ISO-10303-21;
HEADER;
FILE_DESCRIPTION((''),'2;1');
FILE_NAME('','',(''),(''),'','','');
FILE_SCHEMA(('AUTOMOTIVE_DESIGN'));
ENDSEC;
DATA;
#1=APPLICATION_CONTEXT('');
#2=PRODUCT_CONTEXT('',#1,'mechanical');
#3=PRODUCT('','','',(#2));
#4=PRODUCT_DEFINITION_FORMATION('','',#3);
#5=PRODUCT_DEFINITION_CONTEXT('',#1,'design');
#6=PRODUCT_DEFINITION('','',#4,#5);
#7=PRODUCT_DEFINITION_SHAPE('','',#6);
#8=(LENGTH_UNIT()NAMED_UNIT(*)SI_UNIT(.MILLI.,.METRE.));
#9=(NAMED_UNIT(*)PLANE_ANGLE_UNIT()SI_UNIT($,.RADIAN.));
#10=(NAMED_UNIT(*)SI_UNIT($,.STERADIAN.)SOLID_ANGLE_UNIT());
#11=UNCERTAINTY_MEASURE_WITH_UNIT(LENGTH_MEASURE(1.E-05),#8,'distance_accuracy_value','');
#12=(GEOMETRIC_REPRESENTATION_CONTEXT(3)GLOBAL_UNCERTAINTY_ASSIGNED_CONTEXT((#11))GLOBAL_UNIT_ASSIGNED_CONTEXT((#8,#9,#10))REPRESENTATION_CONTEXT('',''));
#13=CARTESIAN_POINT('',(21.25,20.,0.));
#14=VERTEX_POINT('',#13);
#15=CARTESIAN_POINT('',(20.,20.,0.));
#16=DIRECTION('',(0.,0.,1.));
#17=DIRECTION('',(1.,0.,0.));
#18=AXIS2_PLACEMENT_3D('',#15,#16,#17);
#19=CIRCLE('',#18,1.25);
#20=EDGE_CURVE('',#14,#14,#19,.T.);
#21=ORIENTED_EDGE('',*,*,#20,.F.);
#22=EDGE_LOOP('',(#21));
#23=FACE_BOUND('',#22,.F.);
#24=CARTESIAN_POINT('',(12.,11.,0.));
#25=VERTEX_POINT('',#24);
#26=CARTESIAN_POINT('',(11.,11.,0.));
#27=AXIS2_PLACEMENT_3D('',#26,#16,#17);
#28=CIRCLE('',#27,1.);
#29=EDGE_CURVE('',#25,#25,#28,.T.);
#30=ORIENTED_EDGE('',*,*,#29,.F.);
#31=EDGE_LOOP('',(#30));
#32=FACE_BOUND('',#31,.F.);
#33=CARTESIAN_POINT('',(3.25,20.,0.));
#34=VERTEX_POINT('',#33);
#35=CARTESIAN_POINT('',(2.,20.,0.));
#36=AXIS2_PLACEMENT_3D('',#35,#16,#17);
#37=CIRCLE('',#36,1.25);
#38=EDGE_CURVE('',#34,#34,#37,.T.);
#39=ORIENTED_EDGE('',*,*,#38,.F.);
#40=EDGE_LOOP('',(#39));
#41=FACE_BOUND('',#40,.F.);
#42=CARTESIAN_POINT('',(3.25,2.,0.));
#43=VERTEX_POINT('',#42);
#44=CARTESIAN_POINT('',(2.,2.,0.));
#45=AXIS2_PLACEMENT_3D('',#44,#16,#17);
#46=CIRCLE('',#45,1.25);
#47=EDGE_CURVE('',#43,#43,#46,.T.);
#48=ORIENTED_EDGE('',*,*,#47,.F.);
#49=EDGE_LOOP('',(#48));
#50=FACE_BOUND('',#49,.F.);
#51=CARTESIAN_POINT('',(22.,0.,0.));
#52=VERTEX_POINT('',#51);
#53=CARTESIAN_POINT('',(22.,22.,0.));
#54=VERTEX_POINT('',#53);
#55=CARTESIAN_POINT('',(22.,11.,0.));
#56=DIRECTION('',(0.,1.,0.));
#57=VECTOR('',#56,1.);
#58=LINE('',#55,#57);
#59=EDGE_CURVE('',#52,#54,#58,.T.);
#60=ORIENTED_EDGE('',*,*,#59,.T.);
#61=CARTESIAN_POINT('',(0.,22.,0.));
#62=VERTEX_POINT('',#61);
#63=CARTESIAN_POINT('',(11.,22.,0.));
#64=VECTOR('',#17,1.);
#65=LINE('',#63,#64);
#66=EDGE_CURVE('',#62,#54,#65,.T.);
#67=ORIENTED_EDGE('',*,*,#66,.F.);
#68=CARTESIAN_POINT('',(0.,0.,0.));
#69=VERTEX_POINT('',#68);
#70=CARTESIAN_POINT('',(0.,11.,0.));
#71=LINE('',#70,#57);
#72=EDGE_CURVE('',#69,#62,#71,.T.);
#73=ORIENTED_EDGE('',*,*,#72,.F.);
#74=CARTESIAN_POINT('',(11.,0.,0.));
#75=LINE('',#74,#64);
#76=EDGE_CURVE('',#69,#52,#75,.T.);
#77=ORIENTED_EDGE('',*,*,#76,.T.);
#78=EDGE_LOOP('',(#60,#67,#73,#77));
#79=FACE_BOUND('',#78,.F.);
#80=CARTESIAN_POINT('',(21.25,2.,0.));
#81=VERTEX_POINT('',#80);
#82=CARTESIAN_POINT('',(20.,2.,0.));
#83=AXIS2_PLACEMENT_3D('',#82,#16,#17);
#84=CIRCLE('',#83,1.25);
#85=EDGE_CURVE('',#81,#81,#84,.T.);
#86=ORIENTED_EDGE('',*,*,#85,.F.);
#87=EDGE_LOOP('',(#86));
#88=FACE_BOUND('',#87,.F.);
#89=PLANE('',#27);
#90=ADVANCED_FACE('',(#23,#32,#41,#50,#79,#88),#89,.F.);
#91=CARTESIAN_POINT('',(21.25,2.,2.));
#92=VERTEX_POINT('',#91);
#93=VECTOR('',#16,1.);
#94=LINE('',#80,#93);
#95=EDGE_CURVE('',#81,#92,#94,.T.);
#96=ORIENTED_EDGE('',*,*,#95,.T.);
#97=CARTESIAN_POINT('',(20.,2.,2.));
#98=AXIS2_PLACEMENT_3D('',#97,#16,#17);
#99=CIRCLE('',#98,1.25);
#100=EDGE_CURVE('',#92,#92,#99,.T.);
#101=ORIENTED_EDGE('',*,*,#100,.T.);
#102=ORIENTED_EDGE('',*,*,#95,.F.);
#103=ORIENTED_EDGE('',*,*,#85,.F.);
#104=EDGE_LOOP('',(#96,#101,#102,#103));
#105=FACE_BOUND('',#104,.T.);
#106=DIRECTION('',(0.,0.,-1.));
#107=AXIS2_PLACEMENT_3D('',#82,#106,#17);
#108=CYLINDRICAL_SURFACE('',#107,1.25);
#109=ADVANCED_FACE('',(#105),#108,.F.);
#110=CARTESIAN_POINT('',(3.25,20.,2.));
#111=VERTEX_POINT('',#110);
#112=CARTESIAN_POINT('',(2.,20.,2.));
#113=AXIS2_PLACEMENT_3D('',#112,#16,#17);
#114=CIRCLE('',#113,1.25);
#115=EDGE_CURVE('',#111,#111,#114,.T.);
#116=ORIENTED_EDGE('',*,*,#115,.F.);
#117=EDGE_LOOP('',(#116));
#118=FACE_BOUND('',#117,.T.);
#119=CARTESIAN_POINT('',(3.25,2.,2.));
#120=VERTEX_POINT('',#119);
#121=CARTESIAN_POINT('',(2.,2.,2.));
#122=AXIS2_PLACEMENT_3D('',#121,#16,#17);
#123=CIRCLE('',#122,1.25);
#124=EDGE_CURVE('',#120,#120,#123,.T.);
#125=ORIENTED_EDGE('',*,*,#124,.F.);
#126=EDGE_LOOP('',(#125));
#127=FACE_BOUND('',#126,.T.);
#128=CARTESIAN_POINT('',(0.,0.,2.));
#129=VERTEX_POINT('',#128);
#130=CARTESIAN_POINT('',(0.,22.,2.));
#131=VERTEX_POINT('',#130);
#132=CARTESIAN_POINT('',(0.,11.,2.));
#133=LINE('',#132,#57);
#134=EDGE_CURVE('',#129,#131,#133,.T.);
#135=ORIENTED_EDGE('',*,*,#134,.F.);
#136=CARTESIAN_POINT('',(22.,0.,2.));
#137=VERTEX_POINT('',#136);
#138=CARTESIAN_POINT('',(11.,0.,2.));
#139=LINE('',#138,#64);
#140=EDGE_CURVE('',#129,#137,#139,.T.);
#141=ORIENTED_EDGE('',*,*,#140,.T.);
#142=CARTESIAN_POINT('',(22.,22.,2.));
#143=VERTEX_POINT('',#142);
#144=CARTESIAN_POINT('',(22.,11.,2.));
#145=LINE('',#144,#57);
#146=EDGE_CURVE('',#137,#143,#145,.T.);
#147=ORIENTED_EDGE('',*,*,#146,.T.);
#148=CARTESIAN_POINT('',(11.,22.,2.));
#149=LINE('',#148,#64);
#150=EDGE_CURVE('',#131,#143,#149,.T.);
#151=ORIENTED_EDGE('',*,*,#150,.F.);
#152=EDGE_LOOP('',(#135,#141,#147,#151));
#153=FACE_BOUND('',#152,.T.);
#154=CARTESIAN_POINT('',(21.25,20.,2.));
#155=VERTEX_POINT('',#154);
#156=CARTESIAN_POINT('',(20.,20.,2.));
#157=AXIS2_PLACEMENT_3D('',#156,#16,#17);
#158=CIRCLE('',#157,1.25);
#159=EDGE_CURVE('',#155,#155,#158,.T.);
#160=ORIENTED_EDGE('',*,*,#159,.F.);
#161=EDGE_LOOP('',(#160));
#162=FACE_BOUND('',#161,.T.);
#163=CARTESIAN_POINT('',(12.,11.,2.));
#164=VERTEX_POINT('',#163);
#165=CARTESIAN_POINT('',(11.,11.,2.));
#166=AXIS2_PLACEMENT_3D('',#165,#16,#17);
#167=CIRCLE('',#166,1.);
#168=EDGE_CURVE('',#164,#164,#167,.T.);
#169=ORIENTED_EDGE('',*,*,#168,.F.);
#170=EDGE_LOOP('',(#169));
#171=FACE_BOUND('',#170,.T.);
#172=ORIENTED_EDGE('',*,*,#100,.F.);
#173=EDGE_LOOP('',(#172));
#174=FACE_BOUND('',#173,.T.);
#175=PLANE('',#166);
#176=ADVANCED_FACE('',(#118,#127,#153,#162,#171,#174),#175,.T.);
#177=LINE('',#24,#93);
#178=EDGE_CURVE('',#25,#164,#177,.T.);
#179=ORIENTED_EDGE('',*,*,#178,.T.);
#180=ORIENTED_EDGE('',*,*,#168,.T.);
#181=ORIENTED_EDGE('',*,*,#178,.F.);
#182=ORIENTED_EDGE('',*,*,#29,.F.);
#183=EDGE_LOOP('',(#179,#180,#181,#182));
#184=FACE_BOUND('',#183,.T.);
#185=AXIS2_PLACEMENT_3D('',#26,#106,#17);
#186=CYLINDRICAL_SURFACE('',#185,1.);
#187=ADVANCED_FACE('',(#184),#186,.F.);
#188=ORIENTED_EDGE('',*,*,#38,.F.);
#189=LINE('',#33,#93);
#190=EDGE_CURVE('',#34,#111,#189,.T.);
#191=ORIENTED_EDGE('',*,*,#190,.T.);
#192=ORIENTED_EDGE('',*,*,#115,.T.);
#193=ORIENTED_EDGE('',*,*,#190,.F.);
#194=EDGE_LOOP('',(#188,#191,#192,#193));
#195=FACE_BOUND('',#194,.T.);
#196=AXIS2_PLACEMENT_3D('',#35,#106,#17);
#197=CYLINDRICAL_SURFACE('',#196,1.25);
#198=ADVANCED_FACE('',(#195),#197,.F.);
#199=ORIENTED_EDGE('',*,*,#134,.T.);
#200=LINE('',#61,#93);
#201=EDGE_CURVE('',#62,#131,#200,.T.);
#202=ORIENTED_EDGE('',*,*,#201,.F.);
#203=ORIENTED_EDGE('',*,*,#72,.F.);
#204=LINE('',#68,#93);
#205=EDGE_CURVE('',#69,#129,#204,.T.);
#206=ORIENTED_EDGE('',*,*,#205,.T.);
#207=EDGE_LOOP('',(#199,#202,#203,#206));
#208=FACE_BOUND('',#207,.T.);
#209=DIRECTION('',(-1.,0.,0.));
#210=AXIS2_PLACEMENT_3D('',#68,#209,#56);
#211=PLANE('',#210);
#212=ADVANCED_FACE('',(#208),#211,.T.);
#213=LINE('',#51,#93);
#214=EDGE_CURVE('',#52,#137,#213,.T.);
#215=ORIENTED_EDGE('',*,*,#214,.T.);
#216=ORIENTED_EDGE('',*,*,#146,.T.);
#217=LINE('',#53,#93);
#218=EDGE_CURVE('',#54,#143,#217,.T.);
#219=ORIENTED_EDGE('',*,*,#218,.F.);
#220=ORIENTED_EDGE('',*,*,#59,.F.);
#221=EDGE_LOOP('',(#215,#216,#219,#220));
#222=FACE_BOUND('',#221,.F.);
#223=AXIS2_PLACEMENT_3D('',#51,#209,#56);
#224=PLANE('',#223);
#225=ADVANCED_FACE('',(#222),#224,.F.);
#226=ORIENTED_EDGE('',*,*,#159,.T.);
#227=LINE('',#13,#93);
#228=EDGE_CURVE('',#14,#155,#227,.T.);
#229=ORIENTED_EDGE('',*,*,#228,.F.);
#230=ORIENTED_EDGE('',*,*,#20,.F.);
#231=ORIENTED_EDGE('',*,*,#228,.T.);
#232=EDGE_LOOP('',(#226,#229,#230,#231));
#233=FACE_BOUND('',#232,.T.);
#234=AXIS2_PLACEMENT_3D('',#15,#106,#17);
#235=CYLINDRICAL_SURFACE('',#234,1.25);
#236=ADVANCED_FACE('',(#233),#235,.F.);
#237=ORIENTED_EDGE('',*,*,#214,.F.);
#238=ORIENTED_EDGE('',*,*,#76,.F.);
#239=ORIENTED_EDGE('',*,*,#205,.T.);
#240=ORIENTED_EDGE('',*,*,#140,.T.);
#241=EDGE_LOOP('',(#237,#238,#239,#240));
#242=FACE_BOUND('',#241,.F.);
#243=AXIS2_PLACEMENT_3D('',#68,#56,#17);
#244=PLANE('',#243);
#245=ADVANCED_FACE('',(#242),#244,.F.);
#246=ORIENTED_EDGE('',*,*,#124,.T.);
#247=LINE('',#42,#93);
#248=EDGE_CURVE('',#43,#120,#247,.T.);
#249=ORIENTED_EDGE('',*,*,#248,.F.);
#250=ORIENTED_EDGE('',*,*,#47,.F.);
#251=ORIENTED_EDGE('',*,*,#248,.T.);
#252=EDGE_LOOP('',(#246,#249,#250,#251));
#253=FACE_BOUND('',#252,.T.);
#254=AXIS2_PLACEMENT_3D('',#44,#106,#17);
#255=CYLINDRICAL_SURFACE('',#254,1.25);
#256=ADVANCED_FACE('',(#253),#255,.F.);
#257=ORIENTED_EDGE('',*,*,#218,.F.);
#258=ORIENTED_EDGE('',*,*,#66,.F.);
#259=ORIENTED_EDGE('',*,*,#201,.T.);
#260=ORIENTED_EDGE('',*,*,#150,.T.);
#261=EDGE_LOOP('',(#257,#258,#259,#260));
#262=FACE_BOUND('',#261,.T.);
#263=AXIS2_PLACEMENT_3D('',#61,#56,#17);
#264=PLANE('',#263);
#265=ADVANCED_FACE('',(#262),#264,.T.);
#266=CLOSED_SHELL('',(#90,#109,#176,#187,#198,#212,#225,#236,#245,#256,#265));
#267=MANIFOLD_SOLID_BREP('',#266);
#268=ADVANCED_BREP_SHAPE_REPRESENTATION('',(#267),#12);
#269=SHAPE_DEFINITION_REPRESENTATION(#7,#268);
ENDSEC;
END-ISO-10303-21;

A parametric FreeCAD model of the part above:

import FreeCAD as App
import Part
import Sketcher


def add_polygon(sketch, points):
    """Adds a closed chain of lines whose ends are joined by coincident constraints."""
    first, n = sketch.GeometryCount, len(points)
    for a, b in zip(points, points[1:] + points[:1]):
        sketch.addGeometry(Part.LineSegment(App.Vector(*a, 0), App.Vector(*b, 0)), False)
    for i in range(n):
        sketch.addConstraint(Sketcher.Constraint("Coincident", first + i, 2, first + (i + 1) % n, 1))

doc = App.newDocument("Part")
body = doc.addObject("PartDesign::Body", "Body")

sketch1 = body.newObject("Sketcher::SketchObject", "Sketch")
sketch1.AttachmentSupport = (doc.getObject("XY_Plane"), [""])
sketch1.MapMode = "FlatFace"
add_polygon(sketch1, [(0, 22), (0, 0), (22, 0), (22, 22)])
sketch1.addGeometry(Part.Circle(App.Vector(2, 2, 0), App.Vector(0, 0, 1), 1.2), False)
sketch1.addGeometry(Part.Circle(App.Vector(20, 2, 0), App.Vector(0, 0, 1), 1.2), False)
sketch1.addGeometry(Part.Circle(App.Vector(2, 20, 0), App.Vector(0, 0, 1), 1.2), False)
sketch1.addGeometry(Part.Circle(App.Vector(11, 11, 0), App.Vector(0, 0, 1), 1), False)
sketch1.addGeometry(Part.Circle(App.Vector(20, 20, 0), App.Vector(0, 0, 1), 1.2), False)
sketch1.addConstraint([
    Sketcher.Constraint("Vertical", 0),
    Sketcher.Constraint("Horizontal", 1),
    Sketcher.Constraint("Vertical", 2),
    Sketcher.Constraint("Horizontal", 3),
    Sketcher.Constraint("Coincident", 0, 2, -1, 1),
    Sketcher.Constraint("Equal", 4, 5),
    Sketcher.Constraint("Equal", 5, 6),
    Sketcher.Constraint("Equal", 6, 8),
    Sketcher.Constraint("Horizontal", 4, 3, 5, 3),
    Sketcher.Constraint("Horizontal", 6, 3, 8, 3),
    Sketcher.Constraint("Vertical", 4, 3, 6, 3),
    Sketcher.Constraint("Vertical", 5, 3, 8, 3),
    Sketcher.Constraint("Equal", 3, 0),
    Sketcher.Constraint("Diameter", 7, 2.0),
    Sketcher.Constraint("Diameter", 4, 2.5),
    Sketcher.Constraint("DistanceX", 1, 1, 1, 2, 22.0),
    Sketcher.Constraint("DistanceX", -1, 1, 4, 3, 2.0),
    Sketcher.Constraint("DistanceY", -1, 1, 4, 3, 2.0),
    Sketcher.Constraint("DistanceX", -1, 1, 5, 3, 20.0),
    Sketcher.Constraint("DistanceY", -1, 1, 6, 3, 20.0),
    Sketcher.Constraint("DistanceX", -1, 1, 7, 3, 11.0),
    Sketcher.Constraint("DistanceY", -1, 1, 7, 3, 11.0),
])
pad1 = body.newObject("PartDesign::Pad", "Pad")
pad1.Profile = sketch1
pad1.Length = 2

doc.recompute()
